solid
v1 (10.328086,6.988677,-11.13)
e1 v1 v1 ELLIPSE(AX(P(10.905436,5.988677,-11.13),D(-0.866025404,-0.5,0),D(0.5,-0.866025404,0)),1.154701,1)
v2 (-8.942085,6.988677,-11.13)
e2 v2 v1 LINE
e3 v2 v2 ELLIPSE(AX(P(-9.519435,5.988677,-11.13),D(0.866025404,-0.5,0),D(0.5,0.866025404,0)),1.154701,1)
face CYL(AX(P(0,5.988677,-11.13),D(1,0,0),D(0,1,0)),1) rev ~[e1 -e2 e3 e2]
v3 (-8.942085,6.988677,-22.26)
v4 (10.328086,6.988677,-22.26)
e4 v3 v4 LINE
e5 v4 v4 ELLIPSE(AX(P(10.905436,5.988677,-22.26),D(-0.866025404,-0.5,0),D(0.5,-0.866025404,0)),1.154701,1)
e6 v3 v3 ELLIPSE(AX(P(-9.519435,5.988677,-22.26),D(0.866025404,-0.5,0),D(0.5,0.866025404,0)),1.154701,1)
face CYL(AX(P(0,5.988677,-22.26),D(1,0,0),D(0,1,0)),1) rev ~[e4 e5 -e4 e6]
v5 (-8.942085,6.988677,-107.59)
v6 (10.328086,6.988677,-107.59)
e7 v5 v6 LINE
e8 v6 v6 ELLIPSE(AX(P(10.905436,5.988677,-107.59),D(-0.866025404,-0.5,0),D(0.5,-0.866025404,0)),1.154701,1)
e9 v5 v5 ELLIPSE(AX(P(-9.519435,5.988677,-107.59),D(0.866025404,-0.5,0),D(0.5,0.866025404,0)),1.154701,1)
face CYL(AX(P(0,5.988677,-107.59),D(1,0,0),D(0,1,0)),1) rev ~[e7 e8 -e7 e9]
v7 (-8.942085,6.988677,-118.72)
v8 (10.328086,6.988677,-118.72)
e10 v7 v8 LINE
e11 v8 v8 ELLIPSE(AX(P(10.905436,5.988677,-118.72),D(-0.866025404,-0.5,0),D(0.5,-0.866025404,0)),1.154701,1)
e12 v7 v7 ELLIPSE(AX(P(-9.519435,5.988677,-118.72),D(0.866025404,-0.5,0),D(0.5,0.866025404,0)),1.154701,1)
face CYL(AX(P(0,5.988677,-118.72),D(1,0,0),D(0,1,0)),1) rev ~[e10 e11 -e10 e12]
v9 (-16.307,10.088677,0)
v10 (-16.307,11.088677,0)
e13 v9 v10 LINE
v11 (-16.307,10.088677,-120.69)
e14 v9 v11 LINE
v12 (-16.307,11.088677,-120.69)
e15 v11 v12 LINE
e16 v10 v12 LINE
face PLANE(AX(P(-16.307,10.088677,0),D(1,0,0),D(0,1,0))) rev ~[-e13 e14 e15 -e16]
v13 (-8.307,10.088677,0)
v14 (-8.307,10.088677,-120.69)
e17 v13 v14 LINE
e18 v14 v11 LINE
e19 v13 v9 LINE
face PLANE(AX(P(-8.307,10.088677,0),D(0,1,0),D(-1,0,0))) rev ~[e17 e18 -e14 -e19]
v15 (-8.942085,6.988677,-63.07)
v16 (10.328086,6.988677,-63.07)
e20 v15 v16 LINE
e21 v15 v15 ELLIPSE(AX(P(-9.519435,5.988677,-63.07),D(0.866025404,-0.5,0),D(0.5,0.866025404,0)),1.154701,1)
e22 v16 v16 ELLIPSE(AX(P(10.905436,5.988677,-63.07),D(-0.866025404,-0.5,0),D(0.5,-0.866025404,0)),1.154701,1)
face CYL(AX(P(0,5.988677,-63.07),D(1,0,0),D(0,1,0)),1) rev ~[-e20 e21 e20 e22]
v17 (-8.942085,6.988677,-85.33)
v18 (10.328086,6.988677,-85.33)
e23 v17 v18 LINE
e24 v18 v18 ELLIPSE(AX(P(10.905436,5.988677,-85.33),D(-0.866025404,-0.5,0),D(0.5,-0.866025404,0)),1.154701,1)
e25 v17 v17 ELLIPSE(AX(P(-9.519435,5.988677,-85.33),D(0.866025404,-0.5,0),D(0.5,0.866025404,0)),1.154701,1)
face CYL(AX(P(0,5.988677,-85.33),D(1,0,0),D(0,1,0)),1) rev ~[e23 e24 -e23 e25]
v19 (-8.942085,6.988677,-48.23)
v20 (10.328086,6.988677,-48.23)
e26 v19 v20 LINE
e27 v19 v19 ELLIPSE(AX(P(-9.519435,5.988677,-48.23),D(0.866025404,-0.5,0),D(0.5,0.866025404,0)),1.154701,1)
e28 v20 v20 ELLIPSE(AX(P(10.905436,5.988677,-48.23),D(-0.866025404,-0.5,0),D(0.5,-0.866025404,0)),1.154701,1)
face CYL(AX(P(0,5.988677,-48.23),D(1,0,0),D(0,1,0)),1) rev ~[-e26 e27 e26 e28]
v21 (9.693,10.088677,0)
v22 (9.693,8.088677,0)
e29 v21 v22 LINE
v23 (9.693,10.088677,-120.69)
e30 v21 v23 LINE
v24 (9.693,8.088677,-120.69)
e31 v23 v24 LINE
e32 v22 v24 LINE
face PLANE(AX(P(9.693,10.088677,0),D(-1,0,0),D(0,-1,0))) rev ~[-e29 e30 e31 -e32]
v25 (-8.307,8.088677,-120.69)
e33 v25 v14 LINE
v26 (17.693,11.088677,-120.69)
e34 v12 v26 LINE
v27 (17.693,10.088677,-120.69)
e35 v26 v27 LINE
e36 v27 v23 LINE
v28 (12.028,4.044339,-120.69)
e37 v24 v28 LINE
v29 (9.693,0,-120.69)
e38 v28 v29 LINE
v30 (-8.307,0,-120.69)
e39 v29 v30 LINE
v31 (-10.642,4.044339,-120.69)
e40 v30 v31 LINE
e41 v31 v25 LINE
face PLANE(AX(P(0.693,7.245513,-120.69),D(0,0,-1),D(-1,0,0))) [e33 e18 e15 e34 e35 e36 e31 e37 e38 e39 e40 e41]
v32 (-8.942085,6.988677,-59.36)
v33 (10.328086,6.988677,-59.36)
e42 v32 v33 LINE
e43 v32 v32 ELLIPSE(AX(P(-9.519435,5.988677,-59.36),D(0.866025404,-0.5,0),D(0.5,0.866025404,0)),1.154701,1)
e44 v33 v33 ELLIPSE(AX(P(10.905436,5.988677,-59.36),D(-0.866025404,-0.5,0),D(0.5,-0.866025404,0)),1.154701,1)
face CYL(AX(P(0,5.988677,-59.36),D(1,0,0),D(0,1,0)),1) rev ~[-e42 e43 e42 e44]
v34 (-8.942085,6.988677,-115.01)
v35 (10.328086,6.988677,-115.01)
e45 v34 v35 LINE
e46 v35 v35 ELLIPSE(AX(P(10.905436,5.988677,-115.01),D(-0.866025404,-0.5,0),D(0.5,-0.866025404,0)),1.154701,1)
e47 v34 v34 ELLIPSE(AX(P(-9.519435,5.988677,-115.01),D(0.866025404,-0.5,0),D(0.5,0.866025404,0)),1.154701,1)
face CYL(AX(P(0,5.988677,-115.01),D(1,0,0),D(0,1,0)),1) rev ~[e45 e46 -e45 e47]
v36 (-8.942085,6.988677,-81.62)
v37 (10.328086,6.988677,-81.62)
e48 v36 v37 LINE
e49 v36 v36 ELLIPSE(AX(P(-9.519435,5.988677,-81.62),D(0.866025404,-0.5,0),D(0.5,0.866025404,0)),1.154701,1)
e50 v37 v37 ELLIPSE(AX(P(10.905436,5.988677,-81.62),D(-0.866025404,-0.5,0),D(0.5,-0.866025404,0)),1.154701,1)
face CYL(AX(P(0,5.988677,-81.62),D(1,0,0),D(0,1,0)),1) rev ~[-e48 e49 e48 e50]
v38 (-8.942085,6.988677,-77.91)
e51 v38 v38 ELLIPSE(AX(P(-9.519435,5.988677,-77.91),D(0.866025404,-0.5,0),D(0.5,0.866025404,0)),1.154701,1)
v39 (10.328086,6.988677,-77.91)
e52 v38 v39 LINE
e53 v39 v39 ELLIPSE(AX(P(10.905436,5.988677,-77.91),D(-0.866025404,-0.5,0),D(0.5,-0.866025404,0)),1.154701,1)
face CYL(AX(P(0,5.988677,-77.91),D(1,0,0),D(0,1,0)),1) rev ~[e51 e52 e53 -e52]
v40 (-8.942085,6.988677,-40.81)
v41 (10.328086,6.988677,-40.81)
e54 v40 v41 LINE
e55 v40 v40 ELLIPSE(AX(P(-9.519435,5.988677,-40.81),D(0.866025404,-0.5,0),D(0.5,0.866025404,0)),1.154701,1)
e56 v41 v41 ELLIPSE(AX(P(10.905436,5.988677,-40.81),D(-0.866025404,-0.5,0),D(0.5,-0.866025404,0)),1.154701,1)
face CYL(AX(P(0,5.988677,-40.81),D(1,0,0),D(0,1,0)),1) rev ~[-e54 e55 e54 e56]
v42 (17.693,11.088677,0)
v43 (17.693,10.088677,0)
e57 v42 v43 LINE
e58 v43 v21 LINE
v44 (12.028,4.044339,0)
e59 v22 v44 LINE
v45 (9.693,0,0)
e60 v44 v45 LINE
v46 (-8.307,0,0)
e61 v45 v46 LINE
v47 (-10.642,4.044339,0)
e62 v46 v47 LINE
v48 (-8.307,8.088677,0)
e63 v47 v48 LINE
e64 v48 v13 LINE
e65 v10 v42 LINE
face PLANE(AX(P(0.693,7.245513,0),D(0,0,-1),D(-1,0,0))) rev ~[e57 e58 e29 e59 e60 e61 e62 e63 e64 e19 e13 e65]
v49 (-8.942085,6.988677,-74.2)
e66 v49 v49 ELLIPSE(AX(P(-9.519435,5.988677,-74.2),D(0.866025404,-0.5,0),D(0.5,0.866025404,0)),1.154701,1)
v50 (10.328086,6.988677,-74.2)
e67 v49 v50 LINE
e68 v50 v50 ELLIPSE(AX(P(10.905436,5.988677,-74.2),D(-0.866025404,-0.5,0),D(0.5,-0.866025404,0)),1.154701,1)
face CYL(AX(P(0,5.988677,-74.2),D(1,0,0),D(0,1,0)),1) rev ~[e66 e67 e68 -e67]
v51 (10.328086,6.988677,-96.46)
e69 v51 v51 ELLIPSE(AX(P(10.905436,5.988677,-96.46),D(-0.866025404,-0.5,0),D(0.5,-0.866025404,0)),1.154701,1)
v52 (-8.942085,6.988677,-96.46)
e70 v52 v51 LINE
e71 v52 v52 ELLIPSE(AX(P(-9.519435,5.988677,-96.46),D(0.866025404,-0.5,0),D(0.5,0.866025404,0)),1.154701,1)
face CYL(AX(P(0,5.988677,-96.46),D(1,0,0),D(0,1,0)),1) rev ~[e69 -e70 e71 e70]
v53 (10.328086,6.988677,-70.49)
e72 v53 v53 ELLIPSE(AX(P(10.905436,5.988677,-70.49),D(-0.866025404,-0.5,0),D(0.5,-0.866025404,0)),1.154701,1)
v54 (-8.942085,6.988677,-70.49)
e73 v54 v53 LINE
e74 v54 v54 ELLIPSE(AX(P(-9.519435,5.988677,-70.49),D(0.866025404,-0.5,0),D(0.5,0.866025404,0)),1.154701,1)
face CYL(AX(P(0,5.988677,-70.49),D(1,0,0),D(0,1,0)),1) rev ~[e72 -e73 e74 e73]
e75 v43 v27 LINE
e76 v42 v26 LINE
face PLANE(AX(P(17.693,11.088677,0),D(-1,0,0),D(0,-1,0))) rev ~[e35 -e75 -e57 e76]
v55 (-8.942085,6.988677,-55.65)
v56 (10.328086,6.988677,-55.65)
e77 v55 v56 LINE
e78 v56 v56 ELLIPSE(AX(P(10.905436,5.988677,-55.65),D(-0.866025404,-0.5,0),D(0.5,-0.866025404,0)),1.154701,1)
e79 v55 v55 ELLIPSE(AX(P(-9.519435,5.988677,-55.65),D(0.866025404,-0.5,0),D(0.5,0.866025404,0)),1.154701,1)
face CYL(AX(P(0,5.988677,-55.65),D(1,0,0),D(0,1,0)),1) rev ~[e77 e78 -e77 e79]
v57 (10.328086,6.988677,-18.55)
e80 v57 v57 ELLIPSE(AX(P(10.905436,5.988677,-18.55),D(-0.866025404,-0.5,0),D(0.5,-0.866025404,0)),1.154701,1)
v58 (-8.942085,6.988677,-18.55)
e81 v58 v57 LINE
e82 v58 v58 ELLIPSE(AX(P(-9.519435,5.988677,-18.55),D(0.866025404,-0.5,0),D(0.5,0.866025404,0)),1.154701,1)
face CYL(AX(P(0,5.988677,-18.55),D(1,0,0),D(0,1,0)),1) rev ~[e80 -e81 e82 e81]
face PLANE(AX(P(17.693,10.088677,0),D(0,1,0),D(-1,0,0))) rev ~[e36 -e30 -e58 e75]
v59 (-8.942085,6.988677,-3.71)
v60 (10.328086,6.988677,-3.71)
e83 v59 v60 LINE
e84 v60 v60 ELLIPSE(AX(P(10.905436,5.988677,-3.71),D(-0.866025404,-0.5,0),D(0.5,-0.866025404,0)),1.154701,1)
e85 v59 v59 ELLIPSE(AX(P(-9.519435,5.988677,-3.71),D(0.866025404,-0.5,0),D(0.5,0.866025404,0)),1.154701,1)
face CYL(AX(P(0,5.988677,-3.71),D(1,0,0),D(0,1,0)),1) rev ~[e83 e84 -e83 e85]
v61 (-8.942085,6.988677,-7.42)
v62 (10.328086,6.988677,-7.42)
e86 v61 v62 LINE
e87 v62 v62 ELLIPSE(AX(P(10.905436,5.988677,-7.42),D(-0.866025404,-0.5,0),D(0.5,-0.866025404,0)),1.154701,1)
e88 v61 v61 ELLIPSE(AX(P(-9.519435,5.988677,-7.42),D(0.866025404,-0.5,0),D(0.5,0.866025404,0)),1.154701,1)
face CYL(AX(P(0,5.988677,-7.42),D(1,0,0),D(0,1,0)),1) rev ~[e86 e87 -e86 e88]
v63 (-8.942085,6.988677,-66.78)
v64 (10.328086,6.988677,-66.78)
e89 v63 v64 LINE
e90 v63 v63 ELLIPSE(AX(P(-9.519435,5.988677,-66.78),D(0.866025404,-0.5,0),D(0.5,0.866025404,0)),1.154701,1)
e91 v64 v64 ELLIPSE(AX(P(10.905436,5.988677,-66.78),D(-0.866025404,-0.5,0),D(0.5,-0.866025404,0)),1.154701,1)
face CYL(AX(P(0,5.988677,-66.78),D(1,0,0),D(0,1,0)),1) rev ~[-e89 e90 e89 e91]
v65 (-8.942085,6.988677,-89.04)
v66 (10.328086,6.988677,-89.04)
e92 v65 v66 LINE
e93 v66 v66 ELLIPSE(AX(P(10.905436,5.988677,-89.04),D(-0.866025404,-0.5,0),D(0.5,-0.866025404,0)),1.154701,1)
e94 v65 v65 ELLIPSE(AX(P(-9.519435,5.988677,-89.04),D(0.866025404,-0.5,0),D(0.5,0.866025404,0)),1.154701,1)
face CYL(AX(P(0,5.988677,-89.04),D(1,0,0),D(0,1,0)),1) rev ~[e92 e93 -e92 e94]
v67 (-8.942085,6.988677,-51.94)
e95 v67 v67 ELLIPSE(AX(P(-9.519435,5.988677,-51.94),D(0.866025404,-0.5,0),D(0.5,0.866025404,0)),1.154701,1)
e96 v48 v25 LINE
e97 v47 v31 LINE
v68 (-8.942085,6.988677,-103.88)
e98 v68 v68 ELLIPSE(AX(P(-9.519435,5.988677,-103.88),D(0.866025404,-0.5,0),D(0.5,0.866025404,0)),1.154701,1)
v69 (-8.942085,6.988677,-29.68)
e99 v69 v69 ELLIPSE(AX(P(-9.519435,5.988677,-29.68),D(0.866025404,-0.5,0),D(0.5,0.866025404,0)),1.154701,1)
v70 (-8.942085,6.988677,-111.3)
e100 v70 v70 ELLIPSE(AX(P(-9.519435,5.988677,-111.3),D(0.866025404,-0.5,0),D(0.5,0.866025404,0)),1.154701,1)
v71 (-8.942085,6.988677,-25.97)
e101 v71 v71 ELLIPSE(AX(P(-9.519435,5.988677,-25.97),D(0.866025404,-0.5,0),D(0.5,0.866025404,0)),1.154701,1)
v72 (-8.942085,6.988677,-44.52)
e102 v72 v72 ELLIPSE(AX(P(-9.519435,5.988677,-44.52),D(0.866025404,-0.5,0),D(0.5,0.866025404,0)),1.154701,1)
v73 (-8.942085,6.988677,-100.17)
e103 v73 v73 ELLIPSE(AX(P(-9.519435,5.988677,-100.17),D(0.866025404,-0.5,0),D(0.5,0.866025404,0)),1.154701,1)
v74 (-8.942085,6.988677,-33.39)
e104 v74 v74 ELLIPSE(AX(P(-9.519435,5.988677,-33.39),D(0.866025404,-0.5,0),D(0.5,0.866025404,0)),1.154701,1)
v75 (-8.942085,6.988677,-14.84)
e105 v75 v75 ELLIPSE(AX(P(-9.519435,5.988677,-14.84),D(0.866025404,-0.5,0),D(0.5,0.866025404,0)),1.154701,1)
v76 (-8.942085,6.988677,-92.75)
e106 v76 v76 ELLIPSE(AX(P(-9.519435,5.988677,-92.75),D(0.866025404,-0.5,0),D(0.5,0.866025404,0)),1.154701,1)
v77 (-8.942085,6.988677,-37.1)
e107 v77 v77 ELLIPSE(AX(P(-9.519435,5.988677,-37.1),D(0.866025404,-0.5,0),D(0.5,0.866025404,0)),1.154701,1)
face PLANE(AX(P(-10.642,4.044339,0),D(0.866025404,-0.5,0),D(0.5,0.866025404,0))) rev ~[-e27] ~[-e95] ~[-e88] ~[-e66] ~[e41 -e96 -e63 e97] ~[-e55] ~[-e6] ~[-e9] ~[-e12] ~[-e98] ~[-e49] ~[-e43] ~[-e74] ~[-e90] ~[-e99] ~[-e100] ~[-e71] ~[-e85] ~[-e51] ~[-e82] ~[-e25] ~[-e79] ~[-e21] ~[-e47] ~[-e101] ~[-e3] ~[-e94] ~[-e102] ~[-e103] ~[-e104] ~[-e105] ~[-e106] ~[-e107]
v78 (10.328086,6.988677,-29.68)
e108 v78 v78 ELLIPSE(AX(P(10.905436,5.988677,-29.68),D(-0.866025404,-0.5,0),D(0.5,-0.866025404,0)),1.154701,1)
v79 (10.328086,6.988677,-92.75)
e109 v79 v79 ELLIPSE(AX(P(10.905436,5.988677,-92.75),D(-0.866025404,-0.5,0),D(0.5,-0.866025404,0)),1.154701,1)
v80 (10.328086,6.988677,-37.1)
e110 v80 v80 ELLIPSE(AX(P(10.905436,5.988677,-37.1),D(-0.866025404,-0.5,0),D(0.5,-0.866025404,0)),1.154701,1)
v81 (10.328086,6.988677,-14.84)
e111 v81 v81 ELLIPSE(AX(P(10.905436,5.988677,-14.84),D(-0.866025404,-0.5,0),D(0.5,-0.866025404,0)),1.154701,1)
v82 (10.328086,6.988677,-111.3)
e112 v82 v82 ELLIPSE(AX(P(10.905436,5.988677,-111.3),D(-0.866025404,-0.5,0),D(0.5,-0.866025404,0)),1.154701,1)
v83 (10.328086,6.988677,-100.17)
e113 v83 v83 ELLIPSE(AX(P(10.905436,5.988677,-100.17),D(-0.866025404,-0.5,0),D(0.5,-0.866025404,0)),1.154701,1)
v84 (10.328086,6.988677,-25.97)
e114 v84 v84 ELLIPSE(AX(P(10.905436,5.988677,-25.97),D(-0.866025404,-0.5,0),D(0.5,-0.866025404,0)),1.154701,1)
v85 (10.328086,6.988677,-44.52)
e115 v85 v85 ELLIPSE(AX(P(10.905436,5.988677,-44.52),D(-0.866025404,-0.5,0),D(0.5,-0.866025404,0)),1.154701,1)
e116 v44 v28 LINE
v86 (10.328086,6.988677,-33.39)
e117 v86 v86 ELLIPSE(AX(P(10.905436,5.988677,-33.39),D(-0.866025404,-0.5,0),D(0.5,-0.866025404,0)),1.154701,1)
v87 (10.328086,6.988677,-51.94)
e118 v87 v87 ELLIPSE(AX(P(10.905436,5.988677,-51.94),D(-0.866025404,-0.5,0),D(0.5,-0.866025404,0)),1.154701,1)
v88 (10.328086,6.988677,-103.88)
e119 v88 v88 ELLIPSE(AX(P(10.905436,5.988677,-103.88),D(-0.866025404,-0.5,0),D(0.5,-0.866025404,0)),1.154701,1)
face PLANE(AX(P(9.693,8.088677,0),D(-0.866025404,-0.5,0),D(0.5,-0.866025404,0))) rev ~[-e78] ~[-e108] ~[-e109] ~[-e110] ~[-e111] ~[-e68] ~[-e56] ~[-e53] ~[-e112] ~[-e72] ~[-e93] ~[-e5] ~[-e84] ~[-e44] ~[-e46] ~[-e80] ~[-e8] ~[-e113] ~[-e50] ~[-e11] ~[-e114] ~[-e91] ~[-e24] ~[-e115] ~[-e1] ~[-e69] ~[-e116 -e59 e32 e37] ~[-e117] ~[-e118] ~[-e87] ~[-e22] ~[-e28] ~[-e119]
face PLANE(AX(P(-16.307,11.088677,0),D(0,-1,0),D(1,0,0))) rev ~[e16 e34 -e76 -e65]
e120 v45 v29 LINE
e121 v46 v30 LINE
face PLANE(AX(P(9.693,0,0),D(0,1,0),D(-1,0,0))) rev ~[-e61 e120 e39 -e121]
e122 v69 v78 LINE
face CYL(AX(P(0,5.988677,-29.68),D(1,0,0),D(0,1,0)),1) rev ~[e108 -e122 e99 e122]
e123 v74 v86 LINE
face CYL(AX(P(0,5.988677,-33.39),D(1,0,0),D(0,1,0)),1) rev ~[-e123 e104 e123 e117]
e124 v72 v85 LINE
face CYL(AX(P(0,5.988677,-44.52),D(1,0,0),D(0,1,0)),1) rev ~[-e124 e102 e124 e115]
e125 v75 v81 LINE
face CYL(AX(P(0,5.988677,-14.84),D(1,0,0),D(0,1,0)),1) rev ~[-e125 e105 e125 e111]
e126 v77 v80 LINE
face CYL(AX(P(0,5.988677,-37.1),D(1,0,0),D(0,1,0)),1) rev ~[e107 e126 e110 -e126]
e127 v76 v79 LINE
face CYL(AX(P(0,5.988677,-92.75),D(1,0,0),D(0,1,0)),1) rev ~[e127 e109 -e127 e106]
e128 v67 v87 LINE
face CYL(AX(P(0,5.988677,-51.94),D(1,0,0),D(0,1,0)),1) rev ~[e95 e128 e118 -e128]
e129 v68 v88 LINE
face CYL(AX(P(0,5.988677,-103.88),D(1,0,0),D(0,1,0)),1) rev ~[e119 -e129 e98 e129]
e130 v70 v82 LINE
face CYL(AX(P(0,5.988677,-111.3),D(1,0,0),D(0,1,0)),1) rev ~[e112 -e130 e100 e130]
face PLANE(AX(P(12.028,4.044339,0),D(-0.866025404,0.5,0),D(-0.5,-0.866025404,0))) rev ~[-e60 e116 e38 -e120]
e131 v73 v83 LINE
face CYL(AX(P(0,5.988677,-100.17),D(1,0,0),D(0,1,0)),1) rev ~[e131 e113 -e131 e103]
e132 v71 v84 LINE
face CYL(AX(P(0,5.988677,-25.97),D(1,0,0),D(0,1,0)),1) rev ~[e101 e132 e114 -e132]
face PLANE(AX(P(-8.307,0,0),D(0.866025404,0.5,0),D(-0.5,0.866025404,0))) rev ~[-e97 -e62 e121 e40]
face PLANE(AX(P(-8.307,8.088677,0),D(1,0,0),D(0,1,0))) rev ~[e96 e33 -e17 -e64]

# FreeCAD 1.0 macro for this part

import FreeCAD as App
import Part
import Sketcher

V = App.Vector
Q = App.Units.Quantity

doc = App.newDocument("Part")
body = doc.addObject("PartDesign::Body", "Body")

sketch1 = doc.addObject("Sketcher::SketchObject", "Sketch")
body.addObject(sketch1)
sketch1.AttachmentSupport = (doc.XY_Plane, [""])
sketch1.MapMode = "FlatFace"
sketch1.addGeometry([
    Part.LineSegment(V(-8.3, 0, 0), V(9.7, 0, 0)),
    Part.LineSegment(V(9.7, 0, 0), V(12, 4, 0)),
    Part.LineSegment(V(12, 4, 0), V(9.7, 8.1, 0)),
    Part.LineSegment(V(9.7, 8.1, 0), V(9.7, 10.1, 0)),
    Part.LineSegment(V(9.7, 10.1, 0), V(17.7, 10.1, 0)),
    Part.LineSegment(V(17.7, 10.1, 0), V(17.7, 11.1, 0)),
    Part.LineSegment(V(17.7, 11.1, 0), V(-16.3, 11.1, 0)),
    Part.LineSegment(V(-16.3, 11.1, 0), V(-16.3, 10.1, 0)),
    Part.LineSegment(V(-16.3, 10.1, 0), V(-8.3, 10.1, 0)),
    Part.LineSegment(V(-8.3, 10.1, 0), V(-8.3, 8.1, 0)),
    Part.LineSegment(V(-8.3, 8.1, 0), V(-10.6, 4, 0)),
    Part.LineSegment(V(-10.6, 4, 0), V(-8.3, 0, 0)),
], False)
sketch1.addConstraint([
    Sketcher.Constraint("Coincident", 0, 2, 1, 1),
    Sketcher.Constraint("Coincident", 1, 2, 2, 1),
    Sketcher.Constraint("Coincident", 2, 2, 3, 1),
    Sketcher.Constraint("Coincident", 3, 2, 4, 1),
    Sketcher.Constraint("Coincident", 4, 2, 5, 1),
    Sketcher.Constraint("Coincident", 5, 2, 6, 1),
    Sketcher.Constraint("Coincident", 6, 2, 7, 1),
    Sketcher.Constraint("Coincident", 7, 2, 8, 1),
    Sketcher.Constraint("Coincident", 8, 2, 9, 1),
    Sketcher.Constraint("Coincident", 9, 2, 10, 1),
    Sketcher.Constraint("Coincident", 10, 2, 11, 1),
    Sketcher.Constraint("Coincident", 11, 2, 0, 1),
    Sketcher.Constraint("Horizontal", 0),
    Sketcher.Constraint("Vertical", 3),
    Sketcher.Constraint("Horizontal", 4),
    Sketcher.Constraint("Vertical", 5),
    Sketcher.Constraint("Horizontal", 6),
    Sketcher.Constraint("Vertical", 7),
    Sketcher.Constraint("Horizontal", 8),
    Sketcher.Constraint("Vertical", 9),
    Sketcher.Constraint("PointOnObject", 0, 2, -1),
    Sketcher.Constraint("Parallel", 1, 10),
    Sketcher.Constraint("Parallel", 2, 11),
    Sketcher.Constraint("Horizontal", 4, 2, 7, 2),
    Sketcher.Constraint("Horizontal", 2, 2, 9, 2),
    Sketcher.Constraint("Horizontal", 1, 2, 10, 2),
    Sketcher.Constraint("Vertical", 0, 2, 2, 2),
    Sketcher.Constraint("Vertical", 9, 2, 11, 2),
    Sketcher.Constraint("Equal", 4, 8),
    Sketcher.Constraint("DistanceX", 0, 1, 0, 2, 18.0),
    Sketcher.Constraint("DistanceX", 4, 1, 4, 2, 8.0),
    Sketcher.Constraint("DistanceY", 3, 1, 3, 2, 2.0),
    Sketcher.Constraint("DistanceY", 5, 1, 5, 2, 1.0),
    Sketcher.Constraint("Angle", 1, Q("60 deg")),
    Sketcher.Constraint("Distance", 1, 4.67),
    Sketcher.Constraint("DistanceX", -1, 1, 0, 2, 9.693),
])
pad1 = doc.addObject("PartDesign::Pad", "Pad")
body.addObject(pad1)
pad1.Profile = sketch1
pad1.Length = 120.69
pad1.Reversed = True

sketch2 = doc.addObject("Sketcher::SketchObject", "Sketch001")
body.addObject(sketch2)
sketch2.AttachmentSupport = (doc.YZ_Plane, [""])
sketch2.MapMode = "FlatFace"
sketch2.addGeometry(Part.Circle(V(6, -3.7, 0), V(0, 0, 1), 1), False)
sketch2.addConstraint([
    Sketcher.Constraint("Diameter", 0, 2.0),
    Sketcher.Constraint("DistanceY", 0, 3, -1, 1, 3.71),
    Sketcher.Constraint("DistanceX", -1, 1, 0, 3, 5.988677),
])
pocket1 = doc.addObject("PartDesign::Pocket", "Pocket")
body.addObject(pocket1)
pocket1.Profile = sketch2
pocket1.Length = 246.965933
pocket1.Midplane = True
doc.recompute()

linearpattern = doc.addObject("PartDesign::LinearPattern", "LinearPattern")
body.addObject(linearpattern)
linearpattern.Originals = [pocket1]
linearpattern.Direction = (doc.Z_Axis, [""])
linearpattern.Mode = "offset"
linearpattern.Offset = 3.71
linearpattern.Occurrences = 32
linearpattern.Reversed = True
body.Tip = linearpattern

doc.recompute()
